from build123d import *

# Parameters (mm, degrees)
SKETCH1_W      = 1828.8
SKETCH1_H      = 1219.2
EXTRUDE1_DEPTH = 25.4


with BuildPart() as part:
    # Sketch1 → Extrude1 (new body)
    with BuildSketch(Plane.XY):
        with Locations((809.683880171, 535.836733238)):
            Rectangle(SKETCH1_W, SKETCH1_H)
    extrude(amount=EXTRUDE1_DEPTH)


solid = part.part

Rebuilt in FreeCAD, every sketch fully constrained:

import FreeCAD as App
import Part
import Sketcher

V = App.Vector
Q = App.Units.Quantity


def add_polygon(sketch, points):
    """Adds a closed chain of lines whose ends are joined by coincident constraints."""
    first, n = sketch.GeometryCount, len(points)
    for a, b in zip(points, points[1:] + points[:1]):
        sketch.addGeometry(Part.LineSegment(App.Vector(*a, 0), App.Vector(*b, 0)), False)
    for i in range(n):
        sketch.addConstraint(Sketcher.Constraint("Coincident", first + i, 2, first + (i + 1) % n, 1))

doc = App.newDocument("Part")
body = doc.addObject("PartDesign::Body", "Body")

sketch1 = body.newObject("Sketcher::SketchObject", "Sketch")
sketch1.AttachmentSupport = (doc.getObject("XY_Plane"), [""])
sketch1.MapMode = "FlatFace"
add_polygon(sketch1, [(-104.71612, 1145.436733), (-104.71612, -73.763267), (1724.08388, -73.763267), (1724.08388, 1145.436733)])
sketch1.addConstraint([
    Sketcher.Constraint("Vertical", 0),
    Sketcher.Constraint("Horizontal", 1),
    Sketcher.Constraint("Vertical", 2),
    Sketcher.Constraint("Horizontal", 3),
    Sketcher.Constraint("DistanceX", 1, 1, 1, 2, Q("72 in")),
    Sketcher.Constraint("DistanceY", 0, 2, 0, 1, Q("48 in")),
    Sketcher.Constraint("DistanceX", 0, 2, -1, 1, Q("104.71612 mm")),
    Sketcher.Constraint("DistanceY", 0, 2, -1, 1, Q("73.763267 mm")),
])
pad1 = body.newObject("PartDesign::Pad", "Pad")
pad1.Profile = sketch1
pad1.Length = Q("1 in")

doc.recompute()
